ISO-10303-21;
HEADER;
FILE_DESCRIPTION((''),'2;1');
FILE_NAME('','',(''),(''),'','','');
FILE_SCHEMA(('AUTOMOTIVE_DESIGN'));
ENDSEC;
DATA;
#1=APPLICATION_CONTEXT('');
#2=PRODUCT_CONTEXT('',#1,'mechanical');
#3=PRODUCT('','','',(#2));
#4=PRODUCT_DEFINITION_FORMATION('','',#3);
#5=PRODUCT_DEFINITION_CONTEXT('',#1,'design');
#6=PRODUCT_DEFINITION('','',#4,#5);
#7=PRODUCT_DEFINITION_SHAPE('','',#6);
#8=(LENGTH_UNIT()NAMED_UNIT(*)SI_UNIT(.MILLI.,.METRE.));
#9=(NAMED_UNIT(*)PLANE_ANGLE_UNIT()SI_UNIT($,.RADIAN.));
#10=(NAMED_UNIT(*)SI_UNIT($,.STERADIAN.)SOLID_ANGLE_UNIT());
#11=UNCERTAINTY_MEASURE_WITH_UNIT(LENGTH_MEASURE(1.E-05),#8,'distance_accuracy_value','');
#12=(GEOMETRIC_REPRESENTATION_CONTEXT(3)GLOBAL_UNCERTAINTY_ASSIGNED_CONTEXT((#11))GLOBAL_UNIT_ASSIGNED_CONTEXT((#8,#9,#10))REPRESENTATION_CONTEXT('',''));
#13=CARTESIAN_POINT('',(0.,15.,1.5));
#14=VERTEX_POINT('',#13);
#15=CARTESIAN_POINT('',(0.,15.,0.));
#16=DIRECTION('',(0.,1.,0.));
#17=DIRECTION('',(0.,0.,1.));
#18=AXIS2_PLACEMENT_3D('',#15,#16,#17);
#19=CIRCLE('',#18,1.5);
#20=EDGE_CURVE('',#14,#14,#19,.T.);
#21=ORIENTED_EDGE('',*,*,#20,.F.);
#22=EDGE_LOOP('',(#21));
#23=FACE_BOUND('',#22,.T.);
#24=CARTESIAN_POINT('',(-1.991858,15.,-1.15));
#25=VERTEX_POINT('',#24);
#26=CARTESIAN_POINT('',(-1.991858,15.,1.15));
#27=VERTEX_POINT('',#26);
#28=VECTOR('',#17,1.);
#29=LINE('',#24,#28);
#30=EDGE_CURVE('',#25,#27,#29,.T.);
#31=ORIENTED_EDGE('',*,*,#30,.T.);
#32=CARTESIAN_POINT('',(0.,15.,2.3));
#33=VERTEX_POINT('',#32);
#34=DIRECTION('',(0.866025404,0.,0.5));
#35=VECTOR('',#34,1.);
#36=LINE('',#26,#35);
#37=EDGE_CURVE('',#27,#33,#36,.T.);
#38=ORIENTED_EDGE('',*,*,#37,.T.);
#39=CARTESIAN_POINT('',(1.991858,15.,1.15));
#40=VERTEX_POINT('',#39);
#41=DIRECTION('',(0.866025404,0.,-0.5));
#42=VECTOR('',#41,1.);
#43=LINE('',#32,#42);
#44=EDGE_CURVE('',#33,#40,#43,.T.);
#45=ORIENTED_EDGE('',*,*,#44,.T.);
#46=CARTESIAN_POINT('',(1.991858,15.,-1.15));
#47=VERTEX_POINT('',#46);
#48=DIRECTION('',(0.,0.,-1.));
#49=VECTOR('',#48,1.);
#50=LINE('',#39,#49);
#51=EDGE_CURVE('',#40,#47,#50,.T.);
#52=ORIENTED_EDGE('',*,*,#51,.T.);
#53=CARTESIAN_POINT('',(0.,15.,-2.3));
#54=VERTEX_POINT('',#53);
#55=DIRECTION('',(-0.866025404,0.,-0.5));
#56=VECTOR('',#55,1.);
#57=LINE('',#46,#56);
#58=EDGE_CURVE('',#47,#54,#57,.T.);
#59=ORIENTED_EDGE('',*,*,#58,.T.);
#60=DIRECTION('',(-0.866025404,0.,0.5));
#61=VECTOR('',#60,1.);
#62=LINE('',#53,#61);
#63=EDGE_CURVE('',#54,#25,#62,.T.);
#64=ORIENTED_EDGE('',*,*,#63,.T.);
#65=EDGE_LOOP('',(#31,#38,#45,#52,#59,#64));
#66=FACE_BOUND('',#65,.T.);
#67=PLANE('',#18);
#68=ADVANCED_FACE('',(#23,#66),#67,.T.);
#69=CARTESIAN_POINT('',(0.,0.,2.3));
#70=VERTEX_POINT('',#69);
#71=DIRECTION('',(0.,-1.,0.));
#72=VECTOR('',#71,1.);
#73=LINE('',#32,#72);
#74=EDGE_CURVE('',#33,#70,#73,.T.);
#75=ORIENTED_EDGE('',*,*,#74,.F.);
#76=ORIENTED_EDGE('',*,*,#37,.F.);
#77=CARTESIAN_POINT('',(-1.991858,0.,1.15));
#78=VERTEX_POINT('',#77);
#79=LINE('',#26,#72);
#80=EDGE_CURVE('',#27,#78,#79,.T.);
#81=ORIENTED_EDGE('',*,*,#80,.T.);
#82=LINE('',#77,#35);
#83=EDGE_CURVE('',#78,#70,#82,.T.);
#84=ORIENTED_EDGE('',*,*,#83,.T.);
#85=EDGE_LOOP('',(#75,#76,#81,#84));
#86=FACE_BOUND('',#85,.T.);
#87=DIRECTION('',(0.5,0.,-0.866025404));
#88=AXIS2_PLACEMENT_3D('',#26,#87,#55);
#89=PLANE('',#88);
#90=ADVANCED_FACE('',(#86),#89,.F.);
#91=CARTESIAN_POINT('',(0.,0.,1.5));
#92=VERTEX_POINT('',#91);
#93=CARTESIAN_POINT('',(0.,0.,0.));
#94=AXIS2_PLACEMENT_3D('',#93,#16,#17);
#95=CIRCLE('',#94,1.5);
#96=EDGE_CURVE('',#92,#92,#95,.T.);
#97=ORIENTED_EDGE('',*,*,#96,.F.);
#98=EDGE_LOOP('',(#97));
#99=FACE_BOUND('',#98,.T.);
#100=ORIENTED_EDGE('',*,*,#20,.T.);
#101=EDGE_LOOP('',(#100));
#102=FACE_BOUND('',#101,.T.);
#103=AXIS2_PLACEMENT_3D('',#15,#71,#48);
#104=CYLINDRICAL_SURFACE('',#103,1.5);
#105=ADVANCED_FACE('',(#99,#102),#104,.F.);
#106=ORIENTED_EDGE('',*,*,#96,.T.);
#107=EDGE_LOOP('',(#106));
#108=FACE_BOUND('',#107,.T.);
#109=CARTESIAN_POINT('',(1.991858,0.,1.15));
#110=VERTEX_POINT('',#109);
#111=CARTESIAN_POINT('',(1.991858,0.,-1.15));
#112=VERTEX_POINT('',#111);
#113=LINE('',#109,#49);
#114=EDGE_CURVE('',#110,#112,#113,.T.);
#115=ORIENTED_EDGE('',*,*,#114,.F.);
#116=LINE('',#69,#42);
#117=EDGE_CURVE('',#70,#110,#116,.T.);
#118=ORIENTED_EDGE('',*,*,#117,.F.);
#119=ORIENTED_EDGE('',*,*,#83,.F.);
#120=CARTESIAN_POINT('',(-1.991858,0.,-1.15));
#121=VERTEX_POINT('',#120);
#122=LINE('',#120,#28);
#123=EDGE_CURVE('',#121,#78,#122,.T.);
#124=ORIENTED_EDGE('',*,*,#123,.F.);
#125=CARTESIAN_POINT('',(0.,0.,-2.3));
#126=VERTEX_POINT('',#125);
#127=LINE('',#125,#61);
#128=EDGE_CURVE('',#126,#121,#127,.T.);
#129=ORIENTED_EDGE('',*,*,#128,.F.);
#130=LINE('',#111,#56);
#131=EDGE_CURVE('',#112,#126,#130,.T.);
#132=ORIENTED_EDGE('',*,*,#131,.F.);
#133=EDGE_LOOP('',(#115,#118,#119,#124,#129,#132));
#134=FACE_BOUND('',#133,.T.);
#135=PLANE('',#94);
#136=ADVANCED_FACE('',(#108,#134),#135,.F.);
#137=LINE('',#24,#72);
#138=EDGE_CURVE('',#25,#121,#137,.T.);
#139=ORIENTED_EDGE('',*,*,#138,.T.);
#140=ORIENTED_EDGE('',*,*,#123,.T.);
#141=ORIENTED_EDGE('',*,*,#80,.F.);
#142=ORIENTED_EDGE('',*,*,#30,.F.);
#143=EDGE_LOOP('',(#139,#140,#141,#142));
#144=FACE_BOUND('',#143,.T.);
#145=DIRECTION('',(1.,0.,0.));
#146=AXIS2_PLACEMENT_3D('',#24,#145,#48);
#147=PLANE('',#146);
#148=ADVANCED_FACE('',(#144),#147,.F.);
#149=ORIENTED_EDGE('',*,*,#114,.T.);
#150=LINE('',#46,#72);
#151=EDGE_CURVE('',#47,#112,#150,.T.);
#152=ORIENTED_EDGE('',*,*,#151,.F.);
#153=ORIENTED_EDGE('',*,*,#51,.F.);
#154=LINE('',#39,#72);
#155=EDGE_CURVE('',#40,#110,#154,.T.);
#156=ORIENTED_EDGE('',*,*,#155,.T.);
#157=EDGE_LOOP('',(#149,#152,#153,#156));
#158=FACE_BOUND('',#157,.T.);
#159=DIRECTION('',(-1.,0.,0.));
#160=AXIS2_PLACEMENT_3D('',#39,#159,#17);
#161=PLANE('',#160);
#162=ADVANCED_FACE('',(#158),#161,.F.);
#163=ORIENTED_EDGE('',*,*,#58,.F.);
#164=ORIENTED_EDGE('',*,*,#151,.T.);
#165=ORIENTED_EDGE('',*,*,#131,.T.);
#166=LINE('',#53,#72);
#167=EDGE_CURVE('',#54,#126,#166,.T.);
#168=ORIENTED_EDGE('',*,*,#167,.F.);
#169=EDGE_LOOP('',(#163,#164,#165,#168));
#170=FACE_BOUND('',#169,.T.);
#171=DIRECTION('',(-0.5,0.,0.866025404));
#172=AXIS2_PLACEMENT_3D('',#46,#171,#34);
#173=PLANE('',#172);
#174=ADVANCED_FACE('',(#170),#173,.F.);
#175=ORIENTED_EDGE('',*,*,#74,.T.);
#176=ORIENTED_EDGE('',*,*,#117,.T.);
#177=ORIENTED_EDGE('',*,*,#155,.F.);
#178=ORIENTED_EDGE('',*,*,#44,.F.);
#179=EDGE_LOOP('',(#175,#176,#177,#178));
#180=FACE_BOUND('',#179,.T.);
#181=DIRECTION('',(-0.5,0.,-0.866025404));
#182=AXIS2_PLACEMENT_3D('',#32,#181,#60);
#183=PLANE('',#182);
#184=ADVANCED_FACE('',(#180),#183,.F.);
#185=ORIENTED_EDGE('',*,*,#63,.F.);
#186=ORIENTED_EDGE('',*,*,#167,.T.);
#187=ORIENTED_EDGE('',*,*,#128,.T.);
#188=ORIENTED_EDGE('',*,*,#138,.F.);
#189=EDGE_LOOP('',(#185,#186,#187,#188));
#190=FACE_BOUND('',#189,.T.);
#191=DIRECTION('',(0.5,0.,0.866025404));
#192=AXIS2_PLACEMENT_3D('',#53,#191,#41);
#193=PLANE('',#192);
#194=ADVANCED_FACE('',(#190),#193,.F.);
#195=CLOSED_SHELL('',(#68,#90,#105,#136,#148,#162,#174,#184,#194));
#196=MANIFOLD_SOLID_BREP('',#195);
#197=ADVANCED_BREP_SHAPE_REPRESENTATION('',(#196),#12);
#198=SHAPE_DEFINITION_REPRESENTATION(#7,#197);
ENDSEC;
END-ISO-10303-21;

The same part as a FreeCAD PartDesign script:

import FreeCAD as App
import Part
import Sketcher
from FreeCAD import Vector
Q = App.Units.Quantity


def add_polygon(sketch, points):
    """Adds a closed chain of lines whose ends are joined by coincident constraints."""
    first, n = sketch.GeometryCount, len(points)
    for a, b in zip(points, points[1:] + points[:1]):
        sketch.addGeometry(Part.LineSegment(App.Vector(*a, 0), App.Vector(*b, 0)), False)
    for i in range(n):
        sketch.addConstraint(Sketcher.Constraint("Coincident", first + i, 2, first + (i + 1) % n, 1))

doc = App.newDocument("Part")
body = doc.addObject("PartDesign::Body", "Body")

# Sketch on XZ plane
sketch1 = doc.addObject("Sketcher::SketchObject", "Sketch")
body.addObject(sketch1)
sketch1.AttachmentSupport = (doc.XZ_Plane, [""])
sketch1.MapMode = "FlatFace"
add_polygon(sketch1, [(1.991858, -1.15), (0, -2.3), (-1.991858, -1.15), (-1.991858, 1.15), (0, 2.3), (1.991858, 1.15)])  # lines 0-5
sketch1.addGeometry(Part.Circle(Vector(0, 0, 0), Vector(0, 0, 1), 1.5), False)  # 6
sketch1.addConstraint([
    Sketcher.Constraint("Vertical", 2),
    Sketcher.Constraint("Vertical", 5),
    Sketcher.Constraint("Coincident", 6, 3, -1, 1),
    Sketcher.Constraint("Symmetric", 0, 2, 3, 2, -1, 1),
    Sketcher.Constraint("Symmetric", 1, 2, 4, 2, -1, 1),
    Sketcher.Constraint("PointOnObject", 0, 2, -2),
    Sketcher.Constraint("Parallel", 0, 3),
    Sketcher.Constraint("Horizontal", 2, 2, 4, 2),
    Sketcher.Constraint("Diameter", 6, 3.0),
    Sketcher.Constraint("Angle", 0, Q("-150 deg")),
    Sketcher.Constraint("DistanceY", 2, 1, 2, 2, 2.3),
    Sketcher.Constraint("Distance", 0, 2.3),
])
pad1 = doc.addObject("PartDesign::Pad", "Pad")
body.addObject(pad1)
pad1.Profile = sketch1
pad1.Length = 15
pad1.Reversed = True

doc.recompute()
